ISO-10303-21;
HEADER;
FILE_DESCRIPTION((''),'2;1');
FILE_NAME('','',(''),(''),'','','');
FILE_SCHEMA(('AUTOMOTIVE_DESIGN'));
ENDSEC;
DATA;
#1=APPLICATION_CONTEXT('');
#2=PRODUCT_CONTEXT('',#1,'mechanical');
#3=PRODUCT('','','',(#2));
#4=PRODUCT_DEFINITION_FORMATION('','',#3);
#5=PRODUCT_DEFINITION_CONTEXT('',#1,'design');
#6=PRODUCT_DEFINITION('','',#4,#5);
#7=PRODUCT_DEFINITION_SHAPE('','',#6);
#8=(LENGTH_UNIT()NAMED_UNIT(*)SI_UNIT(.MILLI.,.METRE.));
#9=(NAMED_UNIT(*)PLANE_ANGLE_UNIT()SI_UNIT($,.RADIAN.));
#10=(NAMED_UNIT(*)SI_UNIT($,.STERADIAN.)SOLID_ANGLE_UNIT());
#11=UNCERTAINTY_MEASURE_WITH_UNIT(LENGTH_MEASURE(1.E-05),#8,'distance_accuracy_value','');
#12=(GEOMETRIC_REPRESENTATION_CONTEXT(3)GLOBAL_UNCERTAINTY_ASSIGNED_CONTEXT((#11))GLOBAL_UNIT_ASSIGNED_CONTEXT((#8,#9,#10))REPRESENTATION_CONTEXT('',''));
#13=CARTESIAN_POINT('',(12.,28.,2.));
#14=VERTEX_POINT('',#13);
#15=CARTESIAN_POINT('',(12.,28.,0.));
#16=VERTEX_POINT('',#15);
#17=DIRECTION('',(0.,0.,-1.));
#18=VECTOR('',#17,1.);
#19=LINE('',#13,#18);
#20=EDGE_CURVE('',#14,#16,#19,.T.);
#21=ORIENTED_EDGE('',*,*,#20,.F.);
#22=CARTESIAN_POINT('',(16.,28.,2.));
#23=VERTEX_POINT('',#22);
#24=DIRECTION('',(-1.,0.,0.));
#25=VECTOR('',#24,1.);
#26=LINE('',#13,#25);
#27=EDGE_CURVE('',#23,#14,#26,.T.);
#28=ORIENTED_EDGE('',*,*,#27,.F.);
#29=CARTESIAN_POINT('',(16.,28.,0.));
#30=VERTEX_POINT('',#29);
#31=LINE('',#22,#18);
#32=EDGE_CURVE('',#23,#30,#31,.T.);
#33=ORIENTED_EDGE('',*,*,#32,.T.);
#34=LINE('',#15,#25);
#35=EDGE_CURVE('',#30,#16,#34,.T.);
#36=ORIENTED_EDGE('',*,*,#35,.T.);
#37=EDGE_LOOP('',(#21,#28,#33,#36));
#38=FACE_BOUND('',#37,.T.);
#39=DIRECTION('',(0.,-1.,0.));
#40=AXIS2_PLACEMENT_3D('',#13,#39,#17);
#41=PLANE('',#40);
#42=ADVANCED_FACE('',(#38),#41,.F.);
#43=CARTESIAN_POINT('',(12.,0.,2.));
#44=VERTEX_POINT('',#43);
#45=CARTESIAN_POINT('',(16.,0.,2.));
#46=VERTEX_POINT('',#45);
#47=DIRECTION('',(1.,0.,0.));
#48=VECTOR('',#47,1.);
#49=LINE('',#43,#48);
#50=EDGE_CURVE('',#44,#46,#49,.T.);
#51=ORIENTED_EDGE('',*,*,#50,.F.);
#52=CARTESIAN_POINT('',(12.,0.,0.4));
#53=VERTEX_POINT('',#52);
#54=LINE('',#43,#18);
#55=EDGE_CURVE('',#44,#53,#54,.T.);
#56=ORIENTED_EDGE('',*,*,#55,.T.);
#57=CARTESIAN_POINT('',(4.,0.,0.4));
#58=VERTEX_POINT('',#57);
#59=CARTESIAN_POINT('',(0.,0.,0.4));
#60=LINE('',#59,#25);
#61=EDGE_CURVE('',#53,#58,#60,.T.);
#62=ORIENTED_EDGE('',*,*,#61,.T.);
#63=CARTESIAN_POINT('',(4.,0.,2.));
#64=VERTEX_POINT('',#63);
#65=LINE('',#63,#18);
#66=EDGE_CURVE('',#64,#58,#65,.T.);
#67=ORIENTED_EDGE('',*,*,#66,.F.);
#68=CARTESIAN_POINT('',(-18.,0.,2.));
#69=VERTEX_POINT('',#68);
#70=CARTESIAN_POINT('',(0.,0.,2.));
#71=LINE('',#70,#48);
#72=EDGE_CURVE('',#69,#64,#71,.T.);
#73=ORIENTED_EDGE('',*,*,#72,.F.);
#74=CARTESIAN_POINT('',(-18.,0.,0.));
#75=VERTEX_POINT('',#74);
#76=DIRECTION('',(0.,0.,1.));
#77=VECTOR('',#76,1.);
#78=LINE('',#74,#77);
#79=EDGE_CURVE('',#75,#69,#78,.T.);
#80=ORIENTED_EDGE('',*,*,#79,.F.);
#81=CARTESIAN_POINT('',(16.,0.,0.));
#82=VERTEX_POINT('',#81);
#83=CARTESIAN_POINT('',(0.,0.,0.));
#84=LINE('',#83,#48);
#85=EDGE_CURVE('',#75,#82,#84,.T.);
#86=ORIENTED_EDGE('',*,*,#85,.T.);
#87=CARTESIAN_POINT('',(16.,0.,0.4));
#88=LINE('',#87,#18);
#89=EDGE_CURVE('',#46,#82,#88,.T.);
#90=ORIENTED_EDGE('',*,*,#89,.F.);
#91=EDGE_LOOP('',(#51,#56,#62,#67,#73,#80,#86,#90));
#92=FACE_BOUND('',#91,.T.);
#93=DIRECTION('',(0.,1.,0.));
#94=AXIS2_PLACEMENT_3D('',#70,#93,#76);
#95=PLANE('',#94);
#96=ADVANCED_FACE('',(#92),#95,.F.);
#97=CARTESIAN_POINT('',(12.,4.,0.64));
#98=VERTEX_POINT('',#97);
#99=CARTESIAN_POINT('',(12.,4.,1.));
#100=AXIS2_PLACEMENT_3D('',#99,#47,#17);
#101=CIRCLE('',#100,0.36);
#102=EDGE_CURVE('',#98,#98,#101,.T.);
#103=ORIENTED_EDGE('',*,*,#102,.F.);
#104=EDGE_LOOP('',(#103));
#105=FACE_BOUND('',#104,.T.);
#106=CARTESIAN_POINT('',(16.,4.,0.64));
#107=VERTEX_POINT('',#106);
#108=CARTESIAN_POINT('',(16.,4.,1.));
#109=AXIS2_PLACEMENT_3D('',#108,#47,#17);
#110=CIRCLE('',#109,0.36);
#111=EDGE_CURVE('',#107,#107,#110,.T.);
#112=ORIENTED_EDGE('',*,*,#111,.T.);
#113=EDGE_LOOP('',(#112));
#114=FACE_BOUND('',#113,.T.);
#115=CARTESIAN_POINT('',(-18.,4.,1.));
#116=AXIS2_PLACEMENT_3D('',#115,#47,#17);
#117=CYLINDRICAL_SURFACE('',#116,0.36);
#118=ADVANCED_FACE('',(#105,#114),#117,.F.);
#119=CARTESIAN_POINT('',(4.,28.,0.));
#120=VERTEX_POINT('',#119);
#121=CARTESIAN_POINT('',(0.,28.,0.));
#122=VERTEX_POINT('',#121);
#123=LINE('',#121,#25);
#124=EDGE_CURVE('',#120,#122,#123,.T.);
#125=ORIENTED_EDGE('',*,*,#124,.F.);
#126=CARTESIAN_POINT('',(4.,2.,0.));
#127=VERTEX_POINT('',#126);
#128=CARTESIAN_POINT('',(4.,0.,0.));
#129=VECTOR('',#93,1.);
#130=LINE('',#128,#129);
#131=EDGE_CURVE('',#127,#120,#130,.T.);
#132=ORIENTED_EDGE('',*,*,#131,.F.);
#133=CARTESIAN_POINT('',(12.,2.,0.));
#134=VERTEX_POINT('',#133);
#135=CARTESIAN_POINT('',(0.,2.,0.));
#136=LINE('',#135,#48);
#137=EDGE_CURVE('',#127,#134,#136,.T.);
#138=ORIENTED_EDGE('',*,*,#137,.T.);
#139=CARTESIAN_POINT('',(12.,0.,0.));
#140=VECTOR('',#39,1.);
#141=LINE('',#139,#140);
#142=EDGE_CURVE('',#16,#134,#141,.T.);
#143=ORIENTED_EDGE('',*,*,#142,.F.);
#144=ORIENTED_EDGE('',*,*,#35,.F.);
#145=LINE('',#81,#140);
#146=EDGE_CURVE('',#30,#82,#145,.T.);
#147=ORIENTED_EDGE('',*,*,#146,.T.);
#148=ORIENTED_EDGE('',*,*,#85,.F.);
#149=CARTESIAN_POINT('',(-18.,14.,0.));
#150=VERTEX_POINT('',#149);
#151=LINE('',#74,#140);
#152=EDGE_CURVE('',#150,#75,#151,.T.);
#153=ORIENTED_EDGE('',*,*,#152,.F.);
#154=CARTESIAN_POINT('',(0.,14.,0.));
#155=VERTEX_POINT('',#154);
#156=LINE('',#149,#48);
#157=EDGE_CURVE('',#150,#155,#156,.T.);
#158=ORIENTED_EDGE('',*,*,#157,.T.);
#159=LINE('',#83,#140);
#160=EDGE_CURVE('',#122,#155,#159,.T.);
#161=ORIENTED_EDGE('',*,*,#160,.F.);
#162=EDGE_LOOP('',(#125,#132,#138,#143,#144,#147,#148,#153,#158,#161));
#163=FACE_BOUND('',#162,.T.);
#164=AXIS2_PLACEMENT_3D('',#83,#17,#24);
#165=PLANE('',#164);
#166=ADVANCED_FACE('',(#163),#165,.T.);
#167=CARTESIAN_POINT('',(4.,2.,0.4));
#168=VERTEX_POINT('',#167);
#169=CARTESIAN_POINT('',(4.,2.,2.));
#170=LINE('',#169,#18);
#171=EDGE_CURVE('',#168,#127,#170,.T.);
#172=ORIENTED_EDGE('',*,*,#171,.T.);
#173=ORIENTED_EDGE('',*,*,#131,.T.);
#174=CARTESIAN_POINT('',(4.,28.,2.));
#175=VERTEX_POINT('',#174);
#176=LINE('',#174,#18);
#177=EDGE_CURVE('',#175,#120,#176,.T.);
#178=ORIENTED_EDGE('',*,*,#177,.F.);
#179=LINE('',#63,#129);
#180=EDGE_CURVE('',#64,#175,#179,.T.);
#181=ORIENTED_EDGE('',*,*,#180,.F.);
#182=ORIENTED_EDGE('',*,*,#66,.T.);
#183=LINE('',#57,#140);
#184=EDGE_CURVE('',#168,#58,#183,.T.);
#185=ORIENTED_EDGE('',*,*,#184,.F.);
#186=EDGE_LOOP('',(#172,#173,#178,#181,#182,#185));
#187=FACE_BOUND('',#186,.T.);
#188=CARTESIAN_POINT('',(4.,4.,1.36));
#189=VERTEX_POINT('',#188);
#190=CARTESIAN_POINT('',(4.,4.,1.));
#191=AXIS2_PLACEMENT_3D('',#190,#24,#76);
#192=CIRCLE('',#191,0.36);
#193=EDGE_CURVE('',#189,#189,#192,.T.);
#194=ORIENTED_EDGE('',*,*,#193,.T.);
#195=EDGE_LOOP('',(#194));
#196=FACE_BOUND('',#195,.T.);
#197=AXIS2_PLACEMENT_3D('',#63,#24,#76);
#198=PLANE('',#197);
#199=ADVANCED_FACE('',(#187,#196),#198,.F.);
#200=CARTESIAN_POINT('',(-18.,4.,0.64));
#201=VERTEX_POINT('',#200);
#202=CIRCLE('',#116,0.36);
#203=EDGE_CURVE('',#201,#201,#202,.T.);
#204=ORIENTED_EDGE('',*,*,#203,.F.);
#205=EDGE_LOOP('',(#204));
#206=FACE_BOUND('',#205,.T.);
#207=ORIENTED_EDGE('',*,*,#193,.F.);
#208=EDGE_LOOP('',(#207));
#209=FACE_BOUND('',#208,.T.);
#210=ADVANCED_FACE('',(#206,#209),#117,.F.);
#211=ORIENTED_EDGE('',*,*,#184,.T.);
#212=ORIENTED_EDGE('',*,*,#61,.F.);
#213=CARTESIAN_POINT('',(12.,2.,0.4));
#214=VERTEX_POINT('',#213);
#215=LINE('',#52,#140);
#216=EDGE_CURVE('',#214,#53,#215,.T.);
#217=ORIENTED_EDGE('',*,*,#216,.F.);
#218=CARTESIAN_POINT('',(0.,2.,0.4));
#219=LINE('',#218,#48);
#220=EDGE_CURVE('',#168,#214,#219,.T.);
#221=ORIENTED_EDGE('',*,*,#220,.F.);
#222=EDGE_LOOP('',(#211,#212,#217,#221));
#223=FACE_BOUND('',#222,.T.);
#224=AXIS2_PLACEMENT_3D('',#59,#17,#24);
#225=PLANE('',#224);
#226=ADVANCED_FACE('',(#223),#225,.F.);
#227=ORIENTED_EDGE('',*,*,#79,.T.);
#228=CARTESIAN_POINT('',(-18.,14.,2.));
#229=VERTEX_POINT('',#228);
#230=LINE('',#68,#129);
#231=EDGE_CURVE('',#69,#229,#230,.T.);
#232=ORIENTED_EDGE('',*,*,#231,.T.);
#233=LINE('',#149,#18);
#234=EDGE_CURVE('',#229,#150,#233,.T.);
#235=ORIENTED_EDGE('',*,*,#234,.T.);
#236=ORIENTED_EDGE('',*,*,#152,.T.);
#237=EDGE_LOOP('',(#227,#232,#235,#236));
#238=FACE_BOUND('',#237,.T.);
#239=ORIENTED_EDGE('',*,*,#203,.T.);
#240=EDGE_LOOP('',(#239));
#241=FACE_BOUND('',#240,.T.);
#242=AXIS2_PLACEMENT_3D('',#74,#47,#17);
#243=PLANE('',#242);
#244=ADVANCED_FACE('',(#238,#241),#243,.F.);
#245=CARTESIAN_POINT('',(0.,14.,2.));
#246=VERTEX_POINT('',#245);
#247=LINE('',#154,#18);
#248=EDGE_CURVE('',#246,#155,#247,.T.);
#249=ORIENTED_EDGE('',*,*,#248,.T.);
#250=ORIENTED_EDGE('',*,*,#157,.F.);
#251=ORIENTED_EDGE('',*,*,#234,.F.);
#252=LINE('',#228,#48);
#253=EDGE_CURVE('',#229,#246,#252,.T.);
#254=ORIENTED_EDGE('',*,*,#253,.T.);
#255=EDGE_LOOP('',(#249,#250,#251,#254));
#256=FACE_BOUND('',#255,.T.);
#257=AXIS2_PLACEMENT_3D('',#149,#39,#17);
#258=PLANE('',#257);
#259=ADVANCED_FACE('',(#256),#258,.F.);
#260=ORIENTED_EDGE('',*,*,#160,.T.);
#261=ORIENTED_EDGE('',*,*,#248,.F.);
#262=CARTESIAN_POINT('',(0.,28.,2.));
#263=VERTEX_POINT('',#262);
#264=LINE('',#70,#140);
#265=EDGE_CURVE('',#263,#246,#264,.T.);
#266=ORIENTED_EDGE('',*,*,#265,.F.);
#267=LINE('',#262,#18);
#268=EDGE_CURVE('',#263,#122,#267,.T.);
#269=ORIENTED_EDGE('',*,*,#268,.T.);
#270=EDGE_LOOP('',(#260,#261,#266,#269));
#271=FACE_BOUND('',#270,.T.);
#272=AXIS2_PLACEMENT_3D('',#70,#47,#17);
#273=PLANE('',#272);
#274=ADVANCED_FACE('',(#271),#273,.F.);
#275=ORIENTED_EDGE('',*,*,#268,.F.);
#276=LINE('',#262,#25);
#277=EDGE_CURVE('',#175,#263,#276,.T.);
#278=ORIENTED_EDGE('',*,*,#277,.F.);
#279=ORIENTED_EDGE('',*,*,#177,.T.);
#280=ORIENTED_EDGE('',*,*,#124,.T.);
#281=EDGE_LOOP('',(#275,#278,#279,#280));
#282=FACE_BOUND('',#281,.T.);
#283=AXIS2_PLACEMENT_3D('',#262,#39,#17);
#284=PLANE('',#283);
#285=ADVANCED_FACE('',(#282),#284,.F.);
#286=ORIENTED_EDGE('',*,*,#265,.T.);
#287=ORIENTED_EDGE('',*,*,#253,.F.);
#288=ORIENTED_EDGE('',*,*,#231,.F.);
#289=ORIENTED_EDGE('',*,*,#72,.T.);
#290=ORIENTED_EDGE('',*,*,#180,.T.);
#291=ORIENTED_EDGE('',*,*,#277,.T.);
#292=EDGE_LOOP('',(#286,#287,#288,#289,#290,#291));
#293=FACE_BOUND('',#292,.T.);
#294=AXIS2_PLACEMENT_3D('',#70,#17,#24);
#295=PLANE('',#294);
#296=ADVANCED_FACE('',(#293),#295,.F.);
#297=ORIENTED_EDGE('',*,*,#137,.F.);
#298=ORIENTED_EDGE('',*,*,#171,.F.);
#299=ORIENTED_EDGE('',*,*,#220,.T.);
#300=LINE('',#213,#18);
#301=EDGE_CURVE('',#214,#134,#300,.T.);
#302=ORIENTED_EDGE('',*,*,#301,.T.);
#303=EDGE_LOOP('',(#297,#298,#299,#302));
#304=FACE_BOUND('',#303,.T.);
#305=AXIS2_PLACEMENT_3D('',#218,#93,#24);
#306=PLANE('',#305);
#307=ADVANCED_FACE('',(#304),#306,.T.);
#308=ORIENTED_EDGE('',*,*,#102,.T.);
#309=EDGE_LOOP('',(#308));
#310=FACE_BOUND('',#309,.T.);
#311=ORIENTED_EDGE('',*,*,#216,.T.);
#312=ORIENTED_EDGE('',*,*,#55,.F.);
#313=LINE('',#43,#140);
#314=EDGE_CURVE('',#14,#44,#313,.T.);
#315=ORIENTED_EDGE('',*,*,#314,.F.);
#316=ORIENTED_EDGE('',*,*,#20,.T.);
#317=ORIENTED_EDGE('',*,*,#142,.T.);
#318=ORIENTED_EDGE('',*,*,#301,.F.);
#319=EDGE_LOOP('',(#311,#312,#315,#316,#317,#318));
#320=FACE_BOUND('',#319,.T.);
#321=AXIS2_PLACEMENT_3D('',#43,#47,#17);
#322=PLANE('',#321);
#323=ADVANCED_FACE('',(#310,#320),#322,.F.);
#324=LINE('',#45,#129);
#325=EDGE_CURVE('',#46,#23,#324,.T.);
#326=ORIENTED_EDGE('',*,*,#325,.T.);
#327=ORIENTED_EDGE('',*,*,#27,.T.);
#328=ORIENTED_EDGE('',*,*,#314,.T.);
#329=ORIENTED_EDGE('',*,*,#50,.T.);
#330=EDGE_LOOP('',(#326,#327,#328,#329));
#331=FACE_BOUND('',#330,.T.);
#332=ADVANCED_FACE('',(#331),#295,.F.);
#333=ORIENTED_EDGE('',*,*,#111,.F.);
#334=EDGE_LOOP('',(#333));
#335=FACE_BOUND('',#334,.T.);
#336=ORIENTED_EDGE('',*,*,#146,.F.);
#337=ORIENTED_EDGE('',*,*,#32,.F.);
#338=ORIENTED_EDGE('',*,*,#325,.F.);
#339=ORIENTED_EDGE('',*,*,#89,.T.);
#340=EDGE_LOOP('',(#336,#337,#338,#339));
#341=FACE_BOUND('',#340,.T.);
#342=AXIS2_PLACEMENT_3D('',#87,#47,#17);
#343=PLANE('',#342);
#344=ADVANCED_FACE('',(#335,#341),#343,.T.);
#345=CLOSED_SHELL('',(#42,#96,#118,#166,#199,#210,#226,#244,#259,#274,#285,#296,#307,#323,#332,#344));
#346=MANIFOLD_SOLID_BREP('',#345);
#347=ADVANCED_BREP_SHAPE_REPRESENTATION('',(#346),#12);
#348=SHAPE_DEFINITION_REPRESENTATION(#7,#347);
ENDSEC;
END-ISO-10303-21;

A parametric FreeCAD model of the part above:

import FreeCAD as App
import Part
import Sketcher
Q = App.Units.Quantity


def add_polygon(sketch, points):
    """Adds a closed chain of lines whose ends are joined by coincident constraints."""
    first, n = sketch.GeometryCount, len(points)
    for a, b in zip(points, points[1:] + points[:1]):
        sketch.addGeometry(Part.LineSegment(App.Vector(*a, 0), App.Vector(*b, 0)), False)
    for i in range(n):
        sketch.addConstraint(Sketcher.Constraint("Coincident", first + i, 2, first + (i + 1) % n, 1))

doc = App.newDocument("Part")
body = doc.addObject("PartDesign::Body", "Body")

# Sketch on XY plane
sketch1 = body.newObject("Sketcher::SketchObject", "Sketch")
sketch1.AttachmentSupport = (doc.getObject("XY_Plane"), [""])
sketch1.MapMode = "FlatFace"
add_polygon(sketch1, [(0, 28), (0, 0), (4, 0), (4, 28)])  # lines 0-3
sketch1.addConstraint([
    Sketcher.Constraint("Vertical", 0),
    Sketcher.Constraint("Horizontal", 1),
    Sketcher.Constraint("Vertical", 2),
    Sketcher.Constraint("Horizontal", 3),
    Sketcher.Constraint("Coincident", 0, 2, -1, 1),
    Sketcher.Constraint("DistanceX", 1, 1, 1, 2, Q("4 mm")),
    Sketcher.Constraint("DistanceY", 0, 2, 0, 1, Q("28 mm")),
])
pad1 = body.newObject("PartDesign::Pad", "Pad")
pad1.Profile = sketch1
pad1.Length = 2
body2 = doc.addObject("PartDesign::Body", "Body001")

# Sketch on XY plane
sketch2 = body2.newObject("Sketcher::SketchObject", "Sketch001")
sketch2.AttachmentSupport = (doc.getObject("XY_Plane001"), [""])
sketch2.MapMode = "FlatFace"
add_polygon(sketch2, [(12, 28), (12, 0), (16, 0), (16, 28)])  # lines 0-3
sketch2.addConstraint([
    Sketcher.Constraint("Vertical", 0),
    Sketcher.Constraint("Horizontal", 1),
    Sketcher.Constraint("Vertical", 2),
    Sketcher.Constraint("Horizontal", 3),
    Sketcher.Constraint("PointOnObject", 0, 2, -1),
    Sketcher.Constraint("DistanceX", 1, 1, 1, 2, Q("4 mm")),
    Sketcher.Constraint("DistanceY", 0, 2, 0, 1, Q("28 mm")),
    Sketcher.Constraint("DistanceX", -1, 1, 0, 2, Q("12 mm")),
])
pad2 = body2.newObject("PartDesign::Pad", "Pad001")
pad2.Profile = sketch2
pad2.Length = 2
body.AllowCompound = True
doc.recompute()

boolean = body.newObject("PartDesign::Boolean", "Boolean")
boolean.Type = "Fuse"
boolean.addObjects([body2])

# Sketch on XY plane
sketch3 = body.newObject("Sketcher::SketchObject", "Sketch002")
sketch3.AttachmentSupport = (doc.getObject("XY_Plane"), [""])
sketch3.MapMode = "FlatFace"
add_polygon(sketch3, [(16, 2), (16, 0), (0, 0), (0, 2)])  # lines 0-3
sketch3.addConstraint([
    Sketcher.Constraint("Vertical", 0),
    Sketcher.Constraint("Horizontal", 1),
    Sketcher.Constraint("Vertical", 2),
    Sketcher.Constraint("Horizontal", 3),
    Sketcher.Constraint("Coincident", 1, 2, -1, 1),
    Sketcher.Constraint("DistanceX", 1, 2, 1, 1, Q("16 mm")),
    Sketcher.Constraint("DistanceY", 0, 2, 0, 1, Q("2 mm")),
])
pad3 = body.newObject("PartDesign::Pad", "Pad002")
pad3.Profile = sketch3
pad3.Length = 0.4

# Sketch on YZ plane
sketch4 = body.newObject("Sketcher::SketchObject", "Sketch003")
sketch4.AttachmentSupport = (doc.getObject("YZ_Plane"), [""])
sketch4.MapMode = "FlatFace"
add_polygon(sketch4, [(14, 0), (0, 0), (0, 2), (14, 2)])  # lines 0-3
sketch4.addConstraint([
    Sketcher.Constraint("Horizontal", 0),
    Sketcher.Constraint("Vertical", 1),
    Sketcher.Constraint("Horizontal", 2),
    Sketcher.Constraint("Vertical", 3),
    Sketcher.Constraint("Coincident", 0, 2, -1, 1),
    Sketcher.Constraint("DistanceX", 0, 2, 0, 1, Q("14 mm")),
    Sketcher.Constraint("DistanceY", 1, 1, 1, 2, Q("2 mm")),
])
pad4 = body.newObject("PartDesign::Pad", "Pad003")
pad4.Profile = sketch4
pad4.Length = 18
pad4.Reversed = True

# Sketch on YZ plane
sketch5 = body.newObject("Sketcher::SketchObject", "Sketch004")
sketch5.AttachmentSupport = (doc.getObject("YZ_Plane"), [""])
sketch5.MapMode = "FlatFace"
sketch5.AttachmentOffset = App.Placement(App.Vector(0, 0, 16), App.Rotation())
sketch5.addGeometry(Part.Circle(App.Vector(4, 1, 0), App.Vector(0, 0, 1), 0.36), False)
sketch5.addConstraint([
    Sketcher.Constraint("Diameter", 0, Q("0.72 mm")),
    Sketcher.Constraint("DistanceX", -1, 1, 0, 3, Q("4 mm")),
    Sketcher.Constraint("DistanceY", -1, 1, 0, 3, Q("1 mm")),
])
pocket1 = body.newObject("PartDesign::Pocket", "Pocket")
pocket1.Profile = sketch5
pocket1.Type = "ThroughAll"

doc.recompute()
